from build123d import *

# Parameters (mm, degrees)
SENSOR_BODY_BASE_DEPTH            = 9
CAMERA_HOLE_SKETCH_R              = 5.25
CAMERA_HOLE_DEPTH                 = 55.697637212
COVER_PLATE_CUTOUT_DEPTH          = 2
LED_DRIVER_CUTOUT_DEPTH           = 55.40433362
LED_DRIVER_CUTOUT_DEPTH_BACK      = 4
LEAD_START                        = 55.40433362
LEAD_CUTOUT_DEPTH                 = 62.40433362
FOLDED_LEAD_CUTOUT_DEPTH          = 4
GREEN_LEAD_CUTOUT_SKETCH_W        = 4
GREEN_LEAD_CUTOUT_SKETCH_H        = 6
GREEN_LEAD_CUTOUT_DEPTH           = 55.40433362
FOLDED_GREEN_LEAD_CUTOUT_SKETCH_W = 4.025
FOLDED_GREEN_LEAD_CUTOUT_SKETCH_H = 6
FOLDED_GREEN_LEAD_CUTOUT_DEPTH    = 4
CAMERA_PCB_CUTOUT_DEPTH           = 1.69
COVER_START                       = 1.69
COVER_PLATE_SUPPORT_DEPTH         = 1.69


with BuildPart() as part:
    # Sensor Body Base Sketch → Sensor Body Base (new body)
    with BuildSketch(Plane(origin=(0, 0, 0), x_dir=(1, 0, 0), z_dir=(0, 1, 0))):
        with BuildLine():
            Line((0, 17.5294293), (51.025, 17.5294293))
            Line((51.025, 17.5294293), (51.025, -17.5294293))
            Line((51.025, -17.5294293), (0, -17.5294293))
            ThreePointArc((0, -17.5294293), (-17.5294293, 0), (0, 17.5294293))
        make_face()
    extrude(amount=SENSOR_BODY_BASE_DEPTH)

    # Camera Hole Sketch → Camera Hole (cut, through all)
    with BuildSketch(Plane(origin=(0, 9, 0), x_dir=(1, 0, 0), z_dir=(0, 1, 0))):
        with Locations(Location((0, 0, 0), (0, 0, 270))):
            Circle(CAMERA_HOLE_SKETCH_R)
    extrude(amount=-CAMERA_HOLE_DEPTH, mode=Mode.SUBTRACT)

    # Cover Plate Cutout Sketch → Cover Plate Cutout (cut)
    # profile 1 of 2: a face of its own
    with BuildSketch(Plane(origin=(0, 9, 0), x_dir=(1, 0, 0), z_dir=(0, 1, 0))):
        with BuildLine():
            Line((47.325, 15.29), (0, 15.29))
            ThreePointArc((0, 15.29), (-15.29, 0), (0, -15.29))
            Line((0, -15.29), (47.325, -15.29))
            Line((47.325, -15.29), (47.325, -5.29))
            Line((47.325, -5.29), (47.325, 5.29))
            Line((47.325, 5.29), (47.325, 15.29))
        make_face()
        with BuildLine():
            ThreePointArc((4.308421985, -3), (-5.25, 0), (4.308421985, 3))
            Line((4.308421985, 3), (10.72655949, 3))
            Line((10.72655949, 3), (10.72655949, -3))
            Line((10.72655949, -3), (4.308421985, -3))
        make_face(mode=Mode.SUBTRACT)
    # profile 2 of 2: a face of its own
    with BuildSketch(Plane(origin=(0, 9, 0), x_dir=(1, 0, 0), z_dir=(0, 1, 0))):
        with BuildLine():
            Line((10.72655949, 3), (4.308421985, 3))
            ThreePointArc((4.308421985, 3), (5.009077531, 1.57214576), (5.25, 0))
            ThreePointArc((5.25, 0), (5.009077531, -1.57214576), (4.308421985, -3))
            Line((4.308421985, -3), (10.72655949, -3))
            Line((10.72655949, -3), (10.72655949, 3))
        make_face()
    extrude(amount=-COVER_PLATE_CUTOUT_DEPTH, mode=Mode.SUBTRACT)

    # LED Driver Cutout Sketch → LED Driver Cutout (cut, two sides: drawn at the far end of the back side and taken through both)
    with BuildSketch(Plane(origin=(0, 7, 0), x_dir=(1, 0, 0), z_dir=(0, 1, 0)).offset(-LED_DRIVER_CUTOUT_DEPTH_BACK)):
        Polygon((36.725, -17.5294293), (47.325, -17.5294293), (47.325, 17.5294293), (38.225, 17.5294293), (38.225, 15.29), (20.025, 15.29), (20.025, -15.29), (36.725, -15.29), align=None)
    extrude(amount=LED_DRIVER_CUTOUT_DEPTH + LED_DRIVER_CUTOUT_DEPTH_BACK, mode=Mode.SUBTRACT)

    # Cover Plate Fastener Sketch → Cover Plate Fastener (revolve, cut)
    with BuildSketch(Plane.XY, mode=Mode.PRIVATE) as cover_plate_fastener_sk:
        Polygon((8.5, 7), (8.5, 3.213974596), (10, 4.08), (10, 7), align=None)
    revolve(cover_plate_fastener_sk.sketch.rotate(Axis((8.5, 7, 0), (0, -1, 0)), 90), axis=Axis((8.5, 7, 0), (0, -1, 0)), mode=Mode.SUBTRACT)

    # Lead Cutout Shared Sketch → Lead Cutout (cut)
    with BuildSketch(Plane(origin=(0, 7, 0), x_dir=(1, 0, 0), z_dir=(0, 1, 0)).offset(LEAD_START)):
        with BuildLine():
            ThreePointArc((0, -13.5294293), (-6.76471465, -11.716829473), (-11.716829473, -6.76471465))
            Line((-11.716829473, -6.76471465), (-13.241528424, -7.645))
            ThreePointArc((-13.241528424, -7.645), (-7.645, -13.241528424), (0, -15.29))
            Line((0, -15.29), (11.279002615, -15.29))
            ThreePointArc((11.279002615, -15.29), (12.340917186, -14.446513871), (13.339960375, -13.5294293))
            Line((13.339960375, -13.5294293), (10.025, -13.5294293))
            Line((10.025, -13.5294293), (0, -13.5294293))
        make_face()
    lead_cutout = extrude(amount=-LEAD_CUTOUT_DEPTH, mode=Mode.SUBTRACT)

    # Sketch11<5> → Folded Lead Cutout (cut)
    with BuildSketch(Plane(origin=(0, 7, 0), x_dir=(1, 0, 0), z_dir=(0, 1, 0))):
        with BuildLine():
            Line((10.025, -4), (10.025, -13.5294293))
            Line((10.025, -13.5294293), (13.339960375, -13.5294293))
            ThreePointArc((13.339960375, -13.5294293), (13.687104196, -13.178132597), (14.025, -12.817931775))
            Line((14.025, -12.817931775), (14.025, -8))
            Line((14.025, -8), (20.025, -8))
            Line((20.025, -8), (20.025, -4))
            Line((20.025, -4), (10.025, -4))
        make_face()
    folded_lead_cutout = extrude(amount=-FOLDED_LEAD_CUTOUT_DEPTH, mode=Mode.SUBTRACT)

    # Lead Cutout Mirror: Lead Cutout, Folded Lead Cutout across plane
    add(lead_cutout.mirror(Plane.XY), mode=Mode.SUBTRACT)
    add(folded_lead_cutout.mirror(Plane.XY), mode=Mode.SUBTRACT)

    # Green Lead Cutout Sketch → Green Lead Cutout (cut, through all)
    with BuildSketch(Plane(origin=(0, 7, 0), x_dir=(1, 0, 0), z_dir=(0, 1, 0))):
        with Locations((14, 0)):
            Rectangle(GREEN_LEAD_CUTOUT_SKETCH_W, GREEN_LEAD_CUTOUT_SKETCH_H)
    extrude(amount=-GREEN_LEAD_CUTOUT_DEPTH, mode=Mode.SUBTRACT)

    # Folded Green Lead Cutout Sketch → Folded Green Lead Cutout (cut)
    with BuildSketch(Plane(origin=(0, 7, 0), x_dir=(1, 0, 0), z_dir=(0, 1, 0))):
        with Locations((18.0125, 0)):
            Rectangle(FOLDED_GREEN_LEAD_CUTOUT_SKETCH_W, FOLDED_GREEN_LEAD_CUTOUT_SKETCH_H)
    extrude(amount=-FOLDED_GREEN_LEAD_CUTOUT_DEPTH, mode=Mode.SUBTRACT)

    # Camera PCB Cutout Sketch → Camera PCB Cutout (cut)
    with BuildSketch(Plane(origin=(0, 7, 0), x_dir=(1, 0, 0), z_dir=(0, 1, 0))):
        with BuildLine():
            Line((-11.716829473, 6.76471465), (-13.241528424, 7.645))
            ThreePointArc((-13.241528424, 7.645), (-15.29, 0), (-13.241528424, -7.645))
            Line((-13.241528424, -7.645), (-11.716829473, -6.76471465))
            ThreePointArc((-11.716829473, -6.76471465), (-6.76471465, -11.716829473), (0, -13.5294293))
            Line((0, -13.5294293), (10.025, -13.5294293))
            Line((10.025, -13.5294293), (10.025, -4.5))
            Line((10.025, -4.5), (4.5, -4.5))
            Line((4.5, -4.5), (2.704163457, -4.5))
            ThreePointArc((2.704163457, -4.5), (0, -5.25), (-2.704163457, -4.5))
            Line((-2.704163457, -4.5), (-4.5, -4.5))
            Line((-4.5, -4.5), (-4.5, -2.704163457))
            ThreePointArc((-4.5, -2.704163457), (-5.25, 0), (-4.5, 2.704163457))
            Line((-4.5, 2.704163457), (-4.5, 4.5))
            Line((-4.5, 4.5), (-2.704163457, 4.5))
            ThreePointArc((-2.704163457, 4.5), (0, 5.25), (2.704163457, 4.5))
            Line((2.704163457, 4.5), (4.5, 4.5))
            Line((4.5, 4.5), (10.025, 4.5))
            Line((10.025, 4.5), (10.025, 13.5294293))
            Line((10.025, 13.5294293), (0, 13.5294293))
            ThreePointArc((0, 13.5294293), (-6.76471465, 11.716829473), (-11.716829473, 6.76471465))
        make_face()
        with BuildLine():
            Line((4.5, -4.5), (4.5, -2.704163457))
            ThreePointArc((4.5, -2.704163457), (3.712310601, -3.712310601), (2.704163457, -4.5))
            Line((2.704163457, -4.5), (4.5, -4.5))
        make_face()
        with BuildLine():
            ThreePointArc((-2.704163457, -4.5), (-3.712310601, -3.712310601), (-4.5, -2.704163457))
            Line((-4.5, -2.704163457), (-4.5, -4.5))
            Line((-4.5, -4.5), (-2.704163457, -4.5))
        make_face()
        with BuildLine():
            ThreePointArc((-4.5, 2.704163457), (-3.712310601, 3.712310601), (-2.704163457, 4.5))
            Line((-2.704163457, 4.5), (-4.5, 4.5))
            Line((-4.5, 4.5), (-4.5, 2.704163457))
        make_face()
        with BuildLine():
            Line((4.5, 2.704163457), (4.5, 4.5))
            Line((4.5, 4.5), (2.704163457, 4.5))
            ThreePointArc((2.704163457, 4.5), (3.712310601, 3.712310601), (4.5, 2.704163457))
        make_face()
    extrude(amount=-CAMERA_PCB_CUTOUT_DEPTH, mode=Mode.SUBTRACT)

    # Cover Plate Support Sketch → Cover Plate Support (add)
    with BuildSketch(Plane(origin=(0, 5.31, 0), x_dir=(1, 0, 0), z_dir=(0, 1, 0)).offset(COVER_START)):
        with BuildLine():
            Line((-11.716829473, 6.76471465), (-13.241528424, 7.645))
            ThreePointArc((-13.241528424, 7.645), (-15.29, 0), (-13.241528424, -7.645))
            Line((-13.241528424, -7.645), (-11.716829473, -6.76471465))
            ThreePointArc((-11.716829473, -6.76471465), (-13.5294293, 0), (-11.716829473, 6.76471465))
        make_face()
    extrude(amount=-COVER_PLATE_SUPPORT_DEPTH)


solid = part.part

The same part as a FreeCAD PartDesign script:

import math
import FreeCAD as App
import Part
import Sketcher
Q = App.Units.Quantity

doc = App.newDocument("Part")
params = doc.addObject("Spreadsheet::Sheet", "Params")
for row, (alias, value) in enumerate([
    ("pad1_length", "9 mm"),
    ("sketch2_diameter", "10.5 mm"),
    ("sketch3_radius", "15.29 mm"),
    ("sketch3_radius2", "5.25 mm"),
    ("pocket2_length", "2 mm"),
    ("sketch4_width", "10.6 mm"),
    ("sketch4_width2", "9.1 mm"),
    ("sketch4_width3", "18.2 mm"),
    ("sketch4_height", "30.58 mm"),
    ("pocket3_length", "55.404334 mm"),
    ("pocket3_length2", "4 mm"),
    ("sketch5_width", "1.5 mm"),
    ("sketch5_height", "2.92 mm"),
    ("groove_angle", "360 deg"),
    ("sketch6_radius", "19 mm"),
    ("sketch6_radius2", "15.29 mm"),
    ("pocket4_length", "62.404334 mm"),
    ("sketch7_width", "6 mm"),
    ("sketch7_width2", "10 mm"),
    ("sketch7_height", "4 mm"),
    ("pocket5_length", "4 mm"),
    ("sketch8_width", "4 mm"),
    ("sketch8_height", "6 mm"),
    ("sketch9_height", "6 mm"),
    ("pocket7_length", "4 mm"),
    ("sketch10_radius", "15.29 mm"),
    ("sketch10_radius2", "5.25 mm"),
    ("pocket8_length", "1.69 mm"),
    ("sketch11_radius", "15.29 mm"),
    ("pad2_length", "1.69 mm"),
], start=1):
    params.set(f"A{row}", alias)
    params.set(f"B{row}", "=" + value)
    params.setAlias(f"B{row}", alias)

body = doc.addObject("PartDesign::Body", "Body")

# Sketch on XZ plane
sketch1 = body.newObject("Sketcher::SketchObject", "Sketch")
sketch1.AttachmentSupport = (doc.getObject("XZ_Plane"), [""])
sketch1.MapMode = "FlatFace"
sketch1.addGeometry([
    Part.LineSegment(App.Vector(51, -18, 0), App.Vector(0, -18, 0)),
    Part.ArcOfCircle(Part.Circle(App.Vector(0, 0, 0), App.Vector(0, 0, 1), 18), math.radians(90), math.radians(270)),
    Part.LineSegment(App.Vector(0, 18, 0), App.Vector(51, 18, 0)),
    Part.LineSegment(App.Vector(51, 18, 0), App.Vector(51, -18, 0)),
], False)
sketch1.addConstraint([
    Sketcher.Constraint("Tangent", 0, 2, 1, 2),
    Sketcher.Constraint("Tangent", 1, 1, 2, 1),
    Sketcher.Constraint("Coincident", 2, 2, 3, 1),
    Sketcher.Constraint("Coincident", 3, 2, 0, 1),
    Sketcher.Constraint("Horizontal", 0),
    Sketcher.Constraint("Horizontal", 2),
    Sketcher.Constraint("Vertical", 3),
    Sketcher.Constraint("Coincident", 1, 3, -1, 1),
    Sketcher.Constraint("DistanceX", 0, 2, 0, 1, 51.025),
    Sketcher.Constraint("Radius", 1, 17.529429),
])
pad1 = body.newObject("PartDesign::Pad", "Pad")
pad1.Profile = sketch1
pad1.setExpression("Length", "Params.pad1_length")
pad1.Reversed = True

# Sketch on XZ plane
sketch2 = body.newObject("Sketcher::SketchObject", "Sketch001")
sketch2.AttachmentSupport = (doc.getObject("XZ_Plane"), [""])
sketch2.MapMode = "FlatFace"
sketch2.AttachmentOffset = App.Placement(App.Vector(0, 0, -9), App.Rotation())
sketch2.addGeometry(Part.Circle(App.Vector(0, 0, 0), App.Vector(0, 0, 1), 5), False)
sketch2.addConstraint([
    Sketcher.Constraint("Coincident", 0, 3, -1, 1),
    Sketcher.Constraint("Diameter", 0, 10.5),
])
sketch2.setExpression("Constraints[1]", "Params.sketch2_diameter")
pocket1 = body.newObject("PartDesign::Pocket", "Pocket")
pocket1.Profile = sketch2
pocket1.Type = "ThroughAll"
pocket1.Reversed = True

# Sketch on XZ plane
sketch3 = body.newObject("Sketcher::SketchObject", "Sketch002")
sketch3.AttachmentSupport = (doc.getObject("XZ_Plane"), [""])
sketch3.MapMode = "FlatFace"
sketch3.AttachmentOffset = App.Placement(App.Vector(0, 0, -9), App.Rotation())
sketch3.addGeometry([
    Part.LineSegment(App.Vector(47.3, -15.3, 0), App.Vector(0, -15.3, 0)),  # 0
    Part.ArcOfCircle(Part.Circle(App.Vector(0, 0, 0), App.Vector(0, 0, 1), 15.3), math.radians(90), math.radians(270)),  # 1
    Part.LineSegment(App.Vector(0, 15.3, 0), App.Vector(47.3, 15.3, 0)),  # 2
    Part.LineSegment(App.Vector(47.3, 15.3, 0), App.Vector(47.3, -15.3, 0)),  # 3
    Part.ArcOfCircle(Part.Circle(App.Vector(0, 0, 0), App.Vector(0, 0, 1), 5.2), math.radians(35), math.radians(325)),  # 4
    Part.ArcOfCircle(Part.Circle(App.Vector(0, 0, 0), App.Vector(0, 0, 1), 5.2), math.radians(-35), math.radians(0)),  # 5
    Part.ArcOfCircle(Part.Circle(App.Vector(0, 0, 0), App.Vector(0, 0, 1), 5.2), math.radians(0), math.radians(35)),  # 6
], False)
sketch3.addConstraint([
    Sketcher.Constraint("Tangent", 0, 2, 1, 2),
    Sketcher.Constraint("Tangent", 1, 1, 2, 1),
    Sketcher.Constraint("Coincident", 2, 2, 3, 1),
    Sketcher.Constraint("Coincident", 3, 2, 0, 1),
    Sketcher.Constraint("Tangent", 4, 2, 5, 1),
    Sketcher.Constraint("Tangent", 5, 2, 6, 1),
    Sketcher.Constraint("Tangent", 6, 2, 4, 1),
    Sketcher.Constraint("Horizontal", 0),
    Sketcher.Constraint("Horizontal", 2),
    Sketcher.Constraint("Vertical", 3),
    Sketcher.Constraint("Coincident", 1, 3, -1, 1),
    Sketcher.Constraint("Coincident", 4, 3, -1, 1),
    Sketcher.Constraint("PointOnObject", 5, 2, -1),
    Sketcher.Constraint("Vertical", 4, 2, 6, 2),
    Sketcher.Constraint("Radius", 1, 15.29),
    Sketcher.Constraint("Radius", 4, 5.25),
    Sketcher.Constraint("DistanceY", 4, 2, -1, 1, 3.0),
    Sketcher.Constraint("DistanceX", 0, 2, 0, 1, 47.325),
])
sketch3.setExpression("Constraints[14]", "Params.sketch3_radius")
sketch3.setExpression("Constraints[15]", "Params.sketch3_radius2")
pocket2 = body.newObject("PartDesign::Pocket", "Pocket001")
pocket2.Profile = sketch3
pocket2.setExpression("Length", "Params.pocket2_length")
pocket2.Reversed = True

# Sketch on XZ plane
sketch4 = body.newObject("Sketcher::SketchObject", "Sketch003")
sketch4.AttachmentSupport = (doc.getObject("XZ_Plane"), [""])
sketch4.MapMode = "FlatFace"
sketch4.AttachmentOffset = App.Placement(App.Vector(0, 0, -7), App.Rotation())
sketch4.addGeometry([
    Part.LineSegment(App.Vector(36.7, 17.5, 0), App.Vector(47.3, 17.5, 0)),  # 0
    Part.LineSegment(App.Vector(47.3, 17.5, 0), App.Vector(47.3, -17.5, 0)),  # 1
    Part.LineSegment(App.Vector(47.3, -17.5, 0), App.Vector(38.2, -17.5, 0)),  # 2
    Part.LineSegment(App.Vector(38.2, -17.5, 0), App.Vector(38.2, -15.3, 0)),  # 3
    Part.LineSegment(App.Vector(38.2, -15.3, 0), App.Vector(20, -15.3, 0)),  # 4
    Part.LineSegment(App.Vector(20, -15.3, 0), App.Vector(20, 15.3, 0)),  # 5
    Part.LineSegment(App.Vector(20, 15.3, 0), App.Vector(36.7, 15.3, 0)),  # 6
    Part.LineSegment(App.Vector(36.7, 15.3, 0), App.Vector(36.7, 17.5, 0)),  # 7
], False)
sketch4.addConstraint([
    Sketcher.Constraint("Coincident", 0, 2, 1, 1),
    Sketcher.Constraint("Coincident", 1, 2, 2, 1),
    Sketcher.Constraint("Coincident", 2, 2, 3, 1),
    Sketcher.Constraint("Coincident", 3, 2, 4, 1),
    Sketcher.Constraint("Coincident", 4, 2, 5, 1),
    Sketcher.Constraint("Coincident", 5, 2, 6, 1),
    Sketcher.Constraint("Coincident", 6, 2, 7, 1),
    Sketcher.Constraint("Coincident", 7, 2, 0, 1),
    Sketcher.Constraint("Horizontal", 0),
    Sketcher.Constraint("Vertical", 1),
    Sketcher.Constraint("Horizontal", 2),
    Sketcher.Constraint("Vertical", 3),
    Sketcher.Constraint("Horizontal", 4),
    Sketcher.Constraint("Vertical", 5),
    Sketcher.Constraint("Horizontal", 6),
    Sketcher.Constraint("Vertical", 7),
    Sketcher.Constraint("Equal", 3, 7),
    Sketcher.Constraint("DistanceX", 0, 1, 0, 2, 10.6),
    Sketcher.Constraint("DistanceX", 2, 2, 2, 1, 9.1),
    Sketcher.Constraint("DistanceX", 4, 2, 4, 1, 18.2),
    Sketcher.Constraint("DistanceY", 5, 1, 5, 2, 30.58),
    Sketcher.Constraint("DistanceY", 3, 2, -1, 1, 15.29),
    Sketcher.Constraint("DistanceX", -1, 1, 0, 2, 47.325),
    Sketcher.Constraint("DistanceY", 1, 2, 1, 1, 35.058859),
])
sketch4.setExpression("Constraints[17]", "Params.sketch4_width")
sketch4.setExpression("Constraints[18]", "Params.sketch4_width2")
sketch4.setExpression("Constraints[19]", "Params.sketch4_width3")
sketch4.setExpression("Constraints[20]", "Params.sketch4_height")
pocket3 = body.newObject("PartDesign::Pocket", "Pocket002")
pocket3.Profile = sketch4
pocket3.Type = "TwoLengths"
pocket3.setExpression("Length", "Params.pocket3_length")
pocket3.setExpression("Length2", "Params.pocket3_length2")

# Sketch on XY plane
sketch5 = body.newObject("Sketcher::SketchObject", "Sketch004")
sketch5.AttachmentSupport = (doc.getObject("XY_Plane"), [""])
sketch5.MapMode = "FlatFace"
sketch5.addGeometry([
    Part.LineSegment(App.Vector(8.5, 7, 0), App.Vector(8.5, 3.2, 0)),
    Part.LineSegment(App.Vector(8.5, 3.2, 0), App.Vector(10, 4.1, 0)),
    Part.LineSegment(App.Vector(10, 4.1, 0), App.Vector(10, 7, 0)),
    Part.LineSegment(App.Vector(10, 7, 0), App.Vector(8.5, 7, 0)),
], False)
sketch5.addGeometry(Part.LineSegment(App.Vector(8.5, 7, 0), App.Vector(8.5, 3.2, 0)), True)  # axis
sketch5.addConstraint([
    Sketcher.Constraint("Coincident", 0, 2, 1, 1),
    Sketcher.Constraint("Coincident", 1, 2, 2, 1),
    Sketcher.Constraint("Coincident", 2, 2, 3, 1),
    Sketcher.Constraint("Coincident", 3, 2, 0, 1),
    Sketcher.Constraint("Vertical", 0),
    Sketcher.Constraint("Vertical", 2),
    Sketcher.Constraint("Horizontal", 3),
    Sketcher.Constraint("Vertical", 4),
    Sketcher.Constraint("Coincident", 4, 1, 3, 2),
    Sketcher.Constraint("Equal", 0, 4),
    Sketcher.Constraint("Angle", 1, Q("30 deg")),
    Sketcher.Constraint("DistanceX", 3, 2, 3, 1, 1.5),
    Sketcher.Constraint("DistanceX", -1, 1, 1, 2, 10.0),
    Sketcher.Constraint("DistanceY", -1, 1, 2, 2, 7.0),
    Sketcher.Constraint("DistanceY", 2, 1, 2, 2, 2.92),
])
sketch5.setExpression("Constraints[11]", "Params.sketch5_width")
sketch5.setExpression("Constraints[14]", "Params.sketch5_height")
groove = body.newObject("PartDesign::Groove", "Groove")
groove.Profile = sketch5
groove.ReferenceAxis = (sketch5, ["Axis0"])
groove.setExpression("Angle", "Params.groove_angle")

# Sketch on XZ plane
sketch6 = body.newObject("Sketcher::SketchObject", "Sketch005")
sketch6.AttachmentSupport = (doc.getObject("XZ_Plane"), [""])
sketch6.MapMode = "FlatFace"
sketch6.AttachmentOffset = App.Placement(App.Vector(0, 0, -62.404334), App.Rotation())
sketch6.addGeometry([
    Part.ArcOfCircle(Part.Circle(App.Vector(0, 0, 0), App.Vector(0, 0, 1), 13.5), math.radians(90), math.radians(150)),  # 0
    Part.LineSegment(App.Vector(-11.7, 6.8, 0), App.Vector(-13.2, 7.6, 0)),  # 1
    Part.ArcOfCircle(Part.Circle(App.Vector(0, 0, 0), App.Vector(0, 0, 1), 15.3), math.radians(90), math.radians(150)),  # 2
    Part.LineSegment(App.Vector(0, 15.3, 0), App.Vector(11.3, 15.3, 0)),  # 3
    Part.ArcOfCircle(Part.Circle(App.Vector(0, 0, 0), App.Vector(0, 0, 1), 19), math.radians(45.4), math.radians(53.58)),  # 4
    Part.LineSegment(App.Vector(13.3, 13.5, 0), App.Vector(0, 13.5, 0)),  # 5
], False)
sketch6.addConstraint([
    Sketcher.Constraint("Coincident", 0, 2, 1, 1),
    Sketcher.Constraint("Coincident", 1, 2, 2, 2),
    Sketcher.Constraint("Tangent", 2, 1, 3, 1),
    Sketcher.Constraint("Coincident", 3, 2, 4, 2),
    Sketcher.Constraint("Coincident", 4, 1, 5, 1),
    Sketcher.Constraint("Tangent", 5, 2, 0, 1),
    Sketcher.Constraint("Horizontal", 3),
    Sketcher.Constraint("Horizontal", 5),
    Sketcher.Constraint("Coincident", 0, 3, -1, 1),
    Sketcher.Constraint("Coincident", 2, 3, -1, 1),
    Sketcher.Constraint("Coincident", 4, 3, -1, 1),
    Sketcher.Constraint("Radius", 4, 19.0),
    Sketcher.Constraint("Angle", 1, Q("150 deg")),
    Sketcher.Constraint("Radius", 2, 15.29),
    Sketcher.Constraint("Radius", 0, 13.529429),
    Sketcher.Constraint("DistanceY", -1, 1, 1, 2, 7.645),
])
sketch6.setExpression("Constraints[11]", "Params.sketch6_radius")
sketch6.setExpression("Constraints[13]", "Params.sketch6_radius2")
pocket4 = body.newObject("PartDesign::Pocket", "Pocket003")
pocket4.Profile = sketch6
pocket4.setExpression("Length", "Params.pocket4_length")
pocket4.Reversed = True

# Sketch on XZ plane
sketch7 = body.newObject("Sketcher::SketchObject", "Sketch006")
sketch7.AttachmentSupport = (doc.getObject("XZ_Plane"), [""])
sketch7.MapMode = "FlatFace"
sketch7.AttachmentOffset = App.Placement(App.Vector(0, 0, -7), App.Rotation())
sketch7.addGeometry([
    Part.LineSegment(App.Vector(10, 4, 0), App.Vector(10, 13.5, 0)),  # 0
    Part.LineSegment(App.Vector(10, 13.5, 0), App.Vector(13.3, 13.5, 0)),  # 1
    Part.ArcOfCircle(Part.Circle(App.Vector(0, 0, 0), App.Vector(0, 0, 1), 19), math.radians(42.43), math.radians(45.4)),  # 2
    Part.LineSegment(App.Vector(14, 12.8, 0), App.Vector(14, 8, 0)),  # 3
    Part.LineSegment(App.Vector(14, 8, 0), App.Vector(20, 8, 0)),  # 4
    Part.LineSegment(App.Vector(20, 8, 0), App.Vector(20, 4, 0)),  # 5
    Part.LineSegment(App.Vector(20, 4, 0), App.Vector(10, 4, 0)),  # 6
], False)
sketch7.addConstraint([
    Sketcher.Constraint("Coincident", 0, 2, 1, 1),
    Sketcher.Constraint("Coincident", 1, 2, 2, 2),
    Sketcher.Constraint("Coincident", 2, 1, 3, 1),
    Sketcher.Constraint("Coincident", 3, 2, 4, 1),
    Sketcher.Constraint("Coincident", 4, 2, 5, 1),
    Sketcher.Constraint("Coincident", 5, 2, 6, 1),
    Sketcher.Constraint("Coincident", 6, 2, 0, 1),
    Sketcher.Constraint("Vertical", 0),
    Sketcher.Constraint("Horizontal", 1),
    Sketcher.Constraint("Vertical", 3),
    Sketcher.Constraint("Horizontal", 4),
    Sketcher.Constraint("Vertical", 5),
    Sketcher.Constraint("Horizontal", 6),
    Sketcher.Constraint("Coincident", 2, 3, -1, 1),
    Sketcher.Constraint("DistanceX", 4, 1, 4, 2, 6.0),
    Sketcher.Constraint("DistanceX", 6, 2, 6, 1, 10.0),
    Sketcher.Constraint("DistanceY", 5, 2, 5, 1, 4.0),
    Sketcher.Constraint("DistanceY", -1, 1, 3, 2, 8.0),
    Sketcher.Constraint("DistanceX", -1, 1, 0, 2, 10.025),
    Sketcher.Constraint("Radius", 2, 18.999998),
    Sketcher.Constraint("DistanceX", 1, 1, 1, 2, 3.31496),
])
sketch7.setExpression("Constraints[14]", "Params.sketch7_width")
sketch7.setExpression("Constraints[15]", "Params.sketch7_width2")
sketch7.setExpression("Constraints[16]", "Params.sketch7_height")
pocket5 = body.newObject("PartDesign::Pocket", "Pocket004")
pocket5.Profile = sketch7
pocket5.setExpression("Length", "Params.pocket5_length")
pocket5.Reversed = True
doc.recompute()

mirrored = body.newObject("PartDesign::Mirrored", "Mirrored")
mirrored.Originals = [pocket4, pocket5]
mirrored.MirrorPlane = (doc.getObject("XY_Plane"), [""])
body.Tip = mirrored

# Sketch on XZ plane
sketch8 = body.newObject("Sketcher::SketchObject", "Sketch007")
sketch8.AttachmentSupport = (doc.getObject("XZ_Plane"), [""])
sketch8.MapMode = "FlatFace"
sketch8.AttachmentOffset = App.Placement(App.Vector(0, 0, -7), App.Rotation())
sketch8.addGeometry([
    Part.LineSegment(App.Vector(12, -3, 0), App.Vector(12, 3, 0)),
    Part.LineSegment(App.Vector(12, 3, 0), App.Vector(16, 3, 0)),
    Part.LineSegment(App.Vector(16, 3, 0), App.Vector(16, -3, 0)),
    Part.LineSegment(App.Vector(16, -3, 0), App.Vector(12, -3, 0)),
], False)
sketch8.addConstraint([
    Sketcher.Constraint("Coincident", 0, 2, 1, 1),
    Sketcher.Constraint("Coincident", 1, 2, 2, 1),
    Sketcher.Constraint("Coincident", 2, 2, 3, 1),
    Sketcher.Constraint("Coincident", 3, 2, 0, 1),
    Sketcher.Constraint("Vertical", 0),
    Sketcher.Constraint("Horizontal", 1),
    Sketcher.Constraint("Vertical", 2),
    Sketcher.Constraint("Horizontal", 3),
    Sketcher.Constraint("DistanceX", 1, 1, 1, 2, 4.0),
    Sketcher.Constraint("DistanceY", 0, 1, 0, 2, 6.0),
    Sketcher.Constraint("DistanceX", -1, 1, 0, 2, 12.0),
    Sketcher.Constraint("DistanceY", -1, 1, 0, 2, 3.0),
])
sketch8.setExpression("Constraints[8]", "Params.sketch8_width")
sketch8.setExpression("Constraints[9]", "Params.sketch8_height")
pocket6 = body.newObject("PartDesign::Pocket", "Pocket005")
pocket6.Profile = sketch8
pocket6.Type = "ThroughAll"
pocket6.Reversed = True

# Sketch on XZ plane
sketch9 = body.newObject("Sketcher::SketchObject", "Sketch008")
sketch9.AttachmentSupport = (doc.getObject("XZ_Plane"), [""])
sketch9.MapMode = "FlatFace"
sketch9.AttachmentOffset = App.Placement(App.Vector(0, 0, -7), App.Rotation())
sketch9.addGeometry([
    Part.LineSegment(App.Vector(16, -3, 0), App.Vector(16, 3, 0)),
    Part.LineSegment(App.Vector(16, 3, 0), App.Vector(20, 3, 0)),
    Part.LineSegment(App.Vector(20, 3, 0), App.Vector(20, -3, 0)),
    Part.LineSegment(App.Vector(20, -3, 0), App.Vector(16, -3, 0)),
], False)
sketch9.addConstraint([
    Sketcher.Constraint("Coincident", 0, 2, 1, 1),
    Sketcher.Constraint("Coincident", 1, 2, 2, 1),
    Sketcher.Constraint("Coincident", 2, 2, 3, 1),
    Sketcher.Constraint("Coincident", 3, 2, 0, 1),
    Sketcher.Constraint("Vertical", 0),
    Sketcher.Constraint("Horizontal", 1),
    Sketcher.Constraint("Vertical", 2),
    Sketcher.Constraint("Horizontal", 3),
    Sketcher.Constraint("DistanceY", 0, 1, 0, 2, 6.0),
    Sketcher.Constraint("DistanceX", -1, 1, 0, 2, 16.0),
    Sketcher.Constraint("DistanceY", -1, 1, 0, 2, 3.0),
    Sketcher.Constraint("DistanceX", 1, 1, 1, 2, 4.025),
])
sketch9.setExpression("Constraints[8]", "Params.sketch9_height")
pocket7 = body.newObject("PartDesign::Pocket", "Pocket006")
pocket7.Profile = sketch9
pocket7.setExpression("Length", "Params.pocket7_length")
pocket7.Reversed = True

# Sketch on XZ plane
sketch10 = body.newObject("Sketcher::SketchObject", "Sketch009")
sketch10.AttachmentSupport = (doc.getObject("XZ_Plane"), [""])
sketch10.MapMode = "FlatFace"
sketch10.AttachmentOffset = App.Placement(App.Vector(0, 0, -7), App.Rotation())
sketch10.addGeometry([
    Part.LineSegment(App.Vector(-11.7, -6.8, 0), App.Vector(-13.2, -7.6, 0)),  # 0
    Part.ArcOfCircle(Part.Circle(App.Vector(0, 0, 0), App.Vector(0, 0, 1), 15.3), math.radians(150), math.radians(210)),  # 1
    Part.LineSegment(App.Vector(-13.2, 7.6, 0), App.Vector(-11.7, 6.8, 0)),  # 2
    Part.ArcOfCircle(Part.Circle(App.Vector(0, 0, 0), App.Vector(0, 0, 1), 13.5), math.radians(90), math.radians(150)),  # 3
    Part.LineSegment(App.Vector(0, 13.5, 0), App.Vector(10, 13.5, 0)),  # 4
    Part.LineSegment(App.Vector(10, 13.5, 0), App.Vector(10, 4.5, 0)),  # 5
    Part.LineSegment(App.Vector(10, 4.5, 0), App.Vector(4.5, 4.5, 0)),  # 6
    Part.LineSegment(App.Vector(4.5, 4.5, 0), App.Vector(4.5, 2.7, 0)),  # 7
    Part.ArcOfCircle(Part.Circle(App.Vector(0, 0, 0), App.Vector(0, 0, 1), 5.3), math.radians(31), math.radians(59)),  # 8
    Part.ArcOfCircle(Part.Circle(App.Vector(0, 0, 0), App.Vector(0, 0, 1), 5.3), math.radians(59), math.radians(121)),  # 9
    Part.ArcOfCircle(Part.Circle(App.Vector(0, 0, 0), App.Vector(0, 0, 1), 5.3), math.radians(121), math.radians(149)),  # 10
    Part.ArcOfCircle(Part.Circle(App.Vector(0, 0, 0), App.Vector(0, 0, 1), 5.3), math.radians(149), math.radians(211)),  # 11
    Part.ArcOfCircle(Part.Circle(App.Vector(0, 0, 0), App.Vector(0, 0, 1), 5.3), math.radians(-149), math.radians(-121)),  # 12
    Part.ArcOfCircle(Part.Circle(App.Vector(0, 0, 0), App.Vector(0, 0, 1), 5.3), math.radians(-121), math.radians(-59)),  # 13
    Part.ArcOfCircle(Part.Circle(App.Vector(0, 0, 0), App.Vector(0, 0, 1), 5.3), math.radians(-59), math.radians(-31)),  # 14
    Part.LineSegment(App.Vector(4.5, -2.7, 0), App.Vector(4.5, -4.5, 0)),  # 15
    Part.LineSegment(App.Vector(4.5, -4.5, 0), App.Vector(10, -4.5, 0)),  # 16
    Part.LineSegment(App.Vector(10, -4.5, 0), App.Vector(10, -13.5, 0)),  # 17
    Part.LineSegment(App.Vector(10, -13.5, 0), App.Vector(0, -13.5, 0)),  # 18
    Part.ArcOfCircle(Part.Circle(App.Vector(0, 0, 0), App.Vector(0, 0, 1), 13.5), math.radians(-150), math.radians(-90)),  # 19
], False)
sketch10.addConstraint([
    Sketcher.Constraint("Coincident", 0, 2, 1, 2),
    Sketcher.Constraint("Coincident", 1, 1, 2, 1),
    Sketcher.Constraint("Coincident", 2, 2, 3, 2),
    Sketcher.Constraint("Tangent", 3, 1, 4, 1),
    Sketcher.Constraint("Coincident", 4, 2, 5, 1),
    Sketcher.Constraint("Coincident", 5, 2, 6, 1),
    Sketcher.Constraint("Coincident", 6, 2, 7, 1),
    Sketcher.Constraint("Coincident", 7, 2, 8, 1),
    Sketcher.Constraint("Tangent", 8, 2, 9, 1),
    Sketcher.Constraint("Tangent", 9, 2, 10, 1),
    Sketcher.Constraint("Tangent", 10, 2, 11, 1),
    Sketcher.Constraint("Tangent", 11, 2, 12, 1),
    Sketcher.Constraint("Tangent", 12, 2, 13, 1),
    Sketcher.Constraint("Tangent", 13, 2, 14, 1),
    Sketcher.Constraint("Coincident", 14, 2, 15, 1),
    Sketcher.Constraint("Coincident", 15, 2, 16, 1),
    Sketcher.Constraint("Coincident", 16, 2, 17, 1),
    Sketcher.Constraint("Coincident", 17, 2, 18, 1),
    Sketcher.Constraint("Tangent", 18, 2, 19, 2),
    Sketcher.Constraint("Coincident", 19, 1, 0, 1),
    Sketcher.Constraint("Horizontal", 4),
    Sketcher.Constraint("Vertical", 5),
    Sketcher.Constraint("Horizontal", 6),
    Sketcher.Constraint("Vertical", 7),
    Sketcher.Constraint("Vertical", 15),
    Sketcher.Constraint("Horizontal", 16),
    Sketcher.Constraint("Vertical", 17),
    Sketcher.Constraint("Horizontal", 18),
    Sketcher.Constraint("Coincident", 1, 3, -1, 1),
    Sketcher.Constraint("Coincident", 3, 3, -1, 1),
    Sketcher.Constraint("Coincident", 8, 3, -1, 1),
    Sketcher.Constraint("Coincident", 10, 3, -1, 1),
    Sketcher.Constraint("Coincident", 12, 3, -1, 1),
    Sketcher.Constraint("Coincident", 14, 3, -1, 1),
    Sketcher.Constraint("Coincident", 19, 3, -1, 1),
    Sketcher.Constraint("Equal", 3, 19),
    Sketcher.Constraint("Symmetric", 6, 2, 15, 2, -1),
    Sketcher.Constraint("Horizontal", 6, 2, 8, 2),
    Sketcher.Constraint("Horizontal", 8, 2, 9, 2),
    Sketcher.Constraint("Horizontal", 7, 2, 10, 2),
    Sketcher.Constraint("Horizontal", 12, 2, 13, 2),
    Sketcher.Constraint("Horizontal", 11, 2, 14, 2),
    Sketcher.Constraint("Horizontal", 13, 2, 15, 2),
    Sketcher.Constraint("Vertical", 0, 2, 1, 1),
    Sketcher.Constraint("Vertical", 5, 2, 16, 2),
    Sketcher.Constraint("Vertical", 2, 2, 19, 1),
    Sketcher.Constraint("Angle", 0, Q("-150 deg")),
    Sketcher.Constraint("Radius", 1, 15.29),
    Sketcher.Constraint("Radius", 8, 5.25),
    Sketcher.Constraint("DistanceY", 16, 2, 5, 2, 9.0),
    Sketcher.Constraint("DistanceX", -1, 1, 6, 2, 4.5),
    Sketcher.Constraint("DistanceX", 4, 1, 4, 2, 10.025),
    Sketcher.Constraint("Radius", 3, 13.529429),
    Sketcher.Constraint("DistanceY", 0, 2, -1, 1, 7.645),
])
sketch10.setExpression("Constraints[47]", "Params.sketch10_radius")
sketch10.setExpression("Constraints[48]", "Params.sketch10_radius2")
pocket8 = body.newObject("PartDesign::Pocket", "Pocket007")
pocket8.Profile = sketch10
pocket8.setExpression("Length", "Params.pocket8_length")
pocket8.Reversed = True

# Sketch on XZ plane
sketch11 = body.newObject("Sketcher::SketchObject", "Sketch010")
sketch11.AttachmentSupport = (doc.getObject("XZ_Plane"), [""])
sketch11.MapMode = "FlatFace"
sketch11.AttachmentOffset = App.Placement(App.Vector(0, 0, -7), App.Rotation())
sketch11.addGeometry([
    Part.LineSegment(App.Vector(-11.7, -6.8, 0), App.Vector(-13.2, -7.6, 0)),
    Part.ArcOfCircle(Part.Circle(App.Vector(0, 0, 0), App.Vector(0, 0, 1), 15.3), math.radians(150), math.radians(210)),
    Part.LineSegment(App.Vector(-13.2, 7.6, 0), App.Vector(-11.7, 6.8, 0)),
    Part.ArcOfCircle(Part.Circle(App.Vector(0, 0, 0), App.Vector(0, 0, 1), 13.5), math.radians(150), math.radians(210)),
], False)
sketch11.addConstraint([
    Sketcher.Constraint("Coincident", 0, 2, 1, 2),
    Sketcher.Constraint("Coincident", 1, 1, 2, 1),
    Sketcher.Constraint("Coincident", 2, 2, 3, 1),
    Sketcher.Constraint("Coincident", 3, 2, 0, 1),
    Sketcher.Constraint("Coincident", 1, 3, -1, 1),
    Sketcher.Constraint("Coincident", 3, 3, -1, 1),
    Sketcher.Constraint("Vertical", 0, 2, 1, 1),
    Sketcher.Constraint("Vertical", 2, 2, 3, 2),
    Sketcher.Constraint("Angle", 0, Q("-150 deg")),
    Sketcher.Constraint("Radius", 1, 15.29),
    Sketcher.Constraint("Radius", 3, 13.529429),
    Sketcher.Constraint("DistanceY", 0, 2, 1, 1, 15.29),
])
sketch11.setExpression("Constraints[9]", "Params.sketch11_radius")
pad2 = body.newObject("PartDesign::Pad", "Pad001")
pad2.Profile = sketch11
pad2.setExpression("Length", "Params.pad2_length")

doc.recompute()
